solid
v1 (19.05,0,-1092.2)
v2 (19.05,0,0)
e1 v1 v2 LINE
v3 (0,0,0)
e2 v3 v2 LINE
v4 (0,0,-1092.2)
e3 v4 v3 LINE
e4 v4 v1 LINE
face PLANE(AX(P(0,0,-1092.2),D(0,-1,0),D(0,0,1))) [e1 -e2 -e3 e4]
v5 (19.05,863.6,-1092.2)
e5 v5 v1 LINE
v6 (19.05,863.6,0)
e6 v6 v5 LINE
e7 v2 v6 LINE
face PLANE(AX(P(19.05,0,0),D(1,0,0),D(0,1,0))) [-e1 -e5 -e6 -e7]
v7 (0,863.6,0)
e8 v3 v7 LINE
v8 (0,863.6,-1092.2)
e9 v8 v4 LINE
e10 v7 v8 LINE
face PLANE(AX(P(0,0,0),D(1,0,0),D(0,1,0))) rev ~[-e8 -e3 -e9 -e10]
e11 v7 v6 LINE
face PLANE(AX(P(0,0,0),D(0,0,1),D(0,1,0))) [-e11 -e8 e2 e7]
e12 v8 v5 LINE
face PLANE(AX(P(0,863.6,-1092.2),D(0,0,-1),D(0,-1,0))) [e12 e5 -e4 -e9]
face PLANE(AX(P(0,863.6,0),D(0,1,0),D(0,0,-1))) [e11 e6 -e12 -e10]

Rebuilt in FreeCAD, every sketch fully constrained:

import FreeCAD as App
import Part
import Sketcher
from FreeCAD import Vector
Q = App.Units.Quantity


def add_polygon(sketch, points):
    """Adds a closed chain of lines whose ends are joined by coincident constraints."""
    first, n = sketch.GeometryCount, len(points)
    for a, b in zip(points, points[1:] + points[:1]):
        sketch.addGeometry(Part.LineSegment(App.Vector(*a, 0), App.Vector(*b, 0)), False)
    for i in range(n):
        sketch.addConstraint(Sketcher.Constraint("Coincident", first + i, 2, first + (i + 1) % n, 1))

doc = App.newDocument("Part")
body = doc.addObject("PartDesign::Body", "Body")

# Sketch on YZ plane
sketch1 = body.newObject("Sketcher::SketchObject", "Sketch")
sketch1.AttachmentSupport = (doc.getObject("YZ_Plane"), [""])
sketch1.MapMode = "FlatFace"
add_polygon(sketch1, [(864, 0), (0, 0), (0, -1092), (864, -1092)])  # lines 0-3
sketch1.addConstraint([
    Sketcher.Constraint("Horizontal", 0),
    Sketcher.Constraint("Vertical", 1),
    Sketcher.Constraint("Horizontal", 2),
    Sketcher.Constraint("Vertical", 3),
    Sketcher.Constraint("Coincident", 0, 2, -1, 1),
    Sketcher.Constraint("DistanceX", 0, 2, 0, 1, Q("34 in")),
    Sketcher.Constraint("DistanceY", 1, 2, 1, 1, Q("43 in")),
])
pad1 = body.newObject("PartDesign::Pad", "Pad")
pad1.Profile = sketch1
pad1.Length = Q("0.75 in")

doc.recompute()
